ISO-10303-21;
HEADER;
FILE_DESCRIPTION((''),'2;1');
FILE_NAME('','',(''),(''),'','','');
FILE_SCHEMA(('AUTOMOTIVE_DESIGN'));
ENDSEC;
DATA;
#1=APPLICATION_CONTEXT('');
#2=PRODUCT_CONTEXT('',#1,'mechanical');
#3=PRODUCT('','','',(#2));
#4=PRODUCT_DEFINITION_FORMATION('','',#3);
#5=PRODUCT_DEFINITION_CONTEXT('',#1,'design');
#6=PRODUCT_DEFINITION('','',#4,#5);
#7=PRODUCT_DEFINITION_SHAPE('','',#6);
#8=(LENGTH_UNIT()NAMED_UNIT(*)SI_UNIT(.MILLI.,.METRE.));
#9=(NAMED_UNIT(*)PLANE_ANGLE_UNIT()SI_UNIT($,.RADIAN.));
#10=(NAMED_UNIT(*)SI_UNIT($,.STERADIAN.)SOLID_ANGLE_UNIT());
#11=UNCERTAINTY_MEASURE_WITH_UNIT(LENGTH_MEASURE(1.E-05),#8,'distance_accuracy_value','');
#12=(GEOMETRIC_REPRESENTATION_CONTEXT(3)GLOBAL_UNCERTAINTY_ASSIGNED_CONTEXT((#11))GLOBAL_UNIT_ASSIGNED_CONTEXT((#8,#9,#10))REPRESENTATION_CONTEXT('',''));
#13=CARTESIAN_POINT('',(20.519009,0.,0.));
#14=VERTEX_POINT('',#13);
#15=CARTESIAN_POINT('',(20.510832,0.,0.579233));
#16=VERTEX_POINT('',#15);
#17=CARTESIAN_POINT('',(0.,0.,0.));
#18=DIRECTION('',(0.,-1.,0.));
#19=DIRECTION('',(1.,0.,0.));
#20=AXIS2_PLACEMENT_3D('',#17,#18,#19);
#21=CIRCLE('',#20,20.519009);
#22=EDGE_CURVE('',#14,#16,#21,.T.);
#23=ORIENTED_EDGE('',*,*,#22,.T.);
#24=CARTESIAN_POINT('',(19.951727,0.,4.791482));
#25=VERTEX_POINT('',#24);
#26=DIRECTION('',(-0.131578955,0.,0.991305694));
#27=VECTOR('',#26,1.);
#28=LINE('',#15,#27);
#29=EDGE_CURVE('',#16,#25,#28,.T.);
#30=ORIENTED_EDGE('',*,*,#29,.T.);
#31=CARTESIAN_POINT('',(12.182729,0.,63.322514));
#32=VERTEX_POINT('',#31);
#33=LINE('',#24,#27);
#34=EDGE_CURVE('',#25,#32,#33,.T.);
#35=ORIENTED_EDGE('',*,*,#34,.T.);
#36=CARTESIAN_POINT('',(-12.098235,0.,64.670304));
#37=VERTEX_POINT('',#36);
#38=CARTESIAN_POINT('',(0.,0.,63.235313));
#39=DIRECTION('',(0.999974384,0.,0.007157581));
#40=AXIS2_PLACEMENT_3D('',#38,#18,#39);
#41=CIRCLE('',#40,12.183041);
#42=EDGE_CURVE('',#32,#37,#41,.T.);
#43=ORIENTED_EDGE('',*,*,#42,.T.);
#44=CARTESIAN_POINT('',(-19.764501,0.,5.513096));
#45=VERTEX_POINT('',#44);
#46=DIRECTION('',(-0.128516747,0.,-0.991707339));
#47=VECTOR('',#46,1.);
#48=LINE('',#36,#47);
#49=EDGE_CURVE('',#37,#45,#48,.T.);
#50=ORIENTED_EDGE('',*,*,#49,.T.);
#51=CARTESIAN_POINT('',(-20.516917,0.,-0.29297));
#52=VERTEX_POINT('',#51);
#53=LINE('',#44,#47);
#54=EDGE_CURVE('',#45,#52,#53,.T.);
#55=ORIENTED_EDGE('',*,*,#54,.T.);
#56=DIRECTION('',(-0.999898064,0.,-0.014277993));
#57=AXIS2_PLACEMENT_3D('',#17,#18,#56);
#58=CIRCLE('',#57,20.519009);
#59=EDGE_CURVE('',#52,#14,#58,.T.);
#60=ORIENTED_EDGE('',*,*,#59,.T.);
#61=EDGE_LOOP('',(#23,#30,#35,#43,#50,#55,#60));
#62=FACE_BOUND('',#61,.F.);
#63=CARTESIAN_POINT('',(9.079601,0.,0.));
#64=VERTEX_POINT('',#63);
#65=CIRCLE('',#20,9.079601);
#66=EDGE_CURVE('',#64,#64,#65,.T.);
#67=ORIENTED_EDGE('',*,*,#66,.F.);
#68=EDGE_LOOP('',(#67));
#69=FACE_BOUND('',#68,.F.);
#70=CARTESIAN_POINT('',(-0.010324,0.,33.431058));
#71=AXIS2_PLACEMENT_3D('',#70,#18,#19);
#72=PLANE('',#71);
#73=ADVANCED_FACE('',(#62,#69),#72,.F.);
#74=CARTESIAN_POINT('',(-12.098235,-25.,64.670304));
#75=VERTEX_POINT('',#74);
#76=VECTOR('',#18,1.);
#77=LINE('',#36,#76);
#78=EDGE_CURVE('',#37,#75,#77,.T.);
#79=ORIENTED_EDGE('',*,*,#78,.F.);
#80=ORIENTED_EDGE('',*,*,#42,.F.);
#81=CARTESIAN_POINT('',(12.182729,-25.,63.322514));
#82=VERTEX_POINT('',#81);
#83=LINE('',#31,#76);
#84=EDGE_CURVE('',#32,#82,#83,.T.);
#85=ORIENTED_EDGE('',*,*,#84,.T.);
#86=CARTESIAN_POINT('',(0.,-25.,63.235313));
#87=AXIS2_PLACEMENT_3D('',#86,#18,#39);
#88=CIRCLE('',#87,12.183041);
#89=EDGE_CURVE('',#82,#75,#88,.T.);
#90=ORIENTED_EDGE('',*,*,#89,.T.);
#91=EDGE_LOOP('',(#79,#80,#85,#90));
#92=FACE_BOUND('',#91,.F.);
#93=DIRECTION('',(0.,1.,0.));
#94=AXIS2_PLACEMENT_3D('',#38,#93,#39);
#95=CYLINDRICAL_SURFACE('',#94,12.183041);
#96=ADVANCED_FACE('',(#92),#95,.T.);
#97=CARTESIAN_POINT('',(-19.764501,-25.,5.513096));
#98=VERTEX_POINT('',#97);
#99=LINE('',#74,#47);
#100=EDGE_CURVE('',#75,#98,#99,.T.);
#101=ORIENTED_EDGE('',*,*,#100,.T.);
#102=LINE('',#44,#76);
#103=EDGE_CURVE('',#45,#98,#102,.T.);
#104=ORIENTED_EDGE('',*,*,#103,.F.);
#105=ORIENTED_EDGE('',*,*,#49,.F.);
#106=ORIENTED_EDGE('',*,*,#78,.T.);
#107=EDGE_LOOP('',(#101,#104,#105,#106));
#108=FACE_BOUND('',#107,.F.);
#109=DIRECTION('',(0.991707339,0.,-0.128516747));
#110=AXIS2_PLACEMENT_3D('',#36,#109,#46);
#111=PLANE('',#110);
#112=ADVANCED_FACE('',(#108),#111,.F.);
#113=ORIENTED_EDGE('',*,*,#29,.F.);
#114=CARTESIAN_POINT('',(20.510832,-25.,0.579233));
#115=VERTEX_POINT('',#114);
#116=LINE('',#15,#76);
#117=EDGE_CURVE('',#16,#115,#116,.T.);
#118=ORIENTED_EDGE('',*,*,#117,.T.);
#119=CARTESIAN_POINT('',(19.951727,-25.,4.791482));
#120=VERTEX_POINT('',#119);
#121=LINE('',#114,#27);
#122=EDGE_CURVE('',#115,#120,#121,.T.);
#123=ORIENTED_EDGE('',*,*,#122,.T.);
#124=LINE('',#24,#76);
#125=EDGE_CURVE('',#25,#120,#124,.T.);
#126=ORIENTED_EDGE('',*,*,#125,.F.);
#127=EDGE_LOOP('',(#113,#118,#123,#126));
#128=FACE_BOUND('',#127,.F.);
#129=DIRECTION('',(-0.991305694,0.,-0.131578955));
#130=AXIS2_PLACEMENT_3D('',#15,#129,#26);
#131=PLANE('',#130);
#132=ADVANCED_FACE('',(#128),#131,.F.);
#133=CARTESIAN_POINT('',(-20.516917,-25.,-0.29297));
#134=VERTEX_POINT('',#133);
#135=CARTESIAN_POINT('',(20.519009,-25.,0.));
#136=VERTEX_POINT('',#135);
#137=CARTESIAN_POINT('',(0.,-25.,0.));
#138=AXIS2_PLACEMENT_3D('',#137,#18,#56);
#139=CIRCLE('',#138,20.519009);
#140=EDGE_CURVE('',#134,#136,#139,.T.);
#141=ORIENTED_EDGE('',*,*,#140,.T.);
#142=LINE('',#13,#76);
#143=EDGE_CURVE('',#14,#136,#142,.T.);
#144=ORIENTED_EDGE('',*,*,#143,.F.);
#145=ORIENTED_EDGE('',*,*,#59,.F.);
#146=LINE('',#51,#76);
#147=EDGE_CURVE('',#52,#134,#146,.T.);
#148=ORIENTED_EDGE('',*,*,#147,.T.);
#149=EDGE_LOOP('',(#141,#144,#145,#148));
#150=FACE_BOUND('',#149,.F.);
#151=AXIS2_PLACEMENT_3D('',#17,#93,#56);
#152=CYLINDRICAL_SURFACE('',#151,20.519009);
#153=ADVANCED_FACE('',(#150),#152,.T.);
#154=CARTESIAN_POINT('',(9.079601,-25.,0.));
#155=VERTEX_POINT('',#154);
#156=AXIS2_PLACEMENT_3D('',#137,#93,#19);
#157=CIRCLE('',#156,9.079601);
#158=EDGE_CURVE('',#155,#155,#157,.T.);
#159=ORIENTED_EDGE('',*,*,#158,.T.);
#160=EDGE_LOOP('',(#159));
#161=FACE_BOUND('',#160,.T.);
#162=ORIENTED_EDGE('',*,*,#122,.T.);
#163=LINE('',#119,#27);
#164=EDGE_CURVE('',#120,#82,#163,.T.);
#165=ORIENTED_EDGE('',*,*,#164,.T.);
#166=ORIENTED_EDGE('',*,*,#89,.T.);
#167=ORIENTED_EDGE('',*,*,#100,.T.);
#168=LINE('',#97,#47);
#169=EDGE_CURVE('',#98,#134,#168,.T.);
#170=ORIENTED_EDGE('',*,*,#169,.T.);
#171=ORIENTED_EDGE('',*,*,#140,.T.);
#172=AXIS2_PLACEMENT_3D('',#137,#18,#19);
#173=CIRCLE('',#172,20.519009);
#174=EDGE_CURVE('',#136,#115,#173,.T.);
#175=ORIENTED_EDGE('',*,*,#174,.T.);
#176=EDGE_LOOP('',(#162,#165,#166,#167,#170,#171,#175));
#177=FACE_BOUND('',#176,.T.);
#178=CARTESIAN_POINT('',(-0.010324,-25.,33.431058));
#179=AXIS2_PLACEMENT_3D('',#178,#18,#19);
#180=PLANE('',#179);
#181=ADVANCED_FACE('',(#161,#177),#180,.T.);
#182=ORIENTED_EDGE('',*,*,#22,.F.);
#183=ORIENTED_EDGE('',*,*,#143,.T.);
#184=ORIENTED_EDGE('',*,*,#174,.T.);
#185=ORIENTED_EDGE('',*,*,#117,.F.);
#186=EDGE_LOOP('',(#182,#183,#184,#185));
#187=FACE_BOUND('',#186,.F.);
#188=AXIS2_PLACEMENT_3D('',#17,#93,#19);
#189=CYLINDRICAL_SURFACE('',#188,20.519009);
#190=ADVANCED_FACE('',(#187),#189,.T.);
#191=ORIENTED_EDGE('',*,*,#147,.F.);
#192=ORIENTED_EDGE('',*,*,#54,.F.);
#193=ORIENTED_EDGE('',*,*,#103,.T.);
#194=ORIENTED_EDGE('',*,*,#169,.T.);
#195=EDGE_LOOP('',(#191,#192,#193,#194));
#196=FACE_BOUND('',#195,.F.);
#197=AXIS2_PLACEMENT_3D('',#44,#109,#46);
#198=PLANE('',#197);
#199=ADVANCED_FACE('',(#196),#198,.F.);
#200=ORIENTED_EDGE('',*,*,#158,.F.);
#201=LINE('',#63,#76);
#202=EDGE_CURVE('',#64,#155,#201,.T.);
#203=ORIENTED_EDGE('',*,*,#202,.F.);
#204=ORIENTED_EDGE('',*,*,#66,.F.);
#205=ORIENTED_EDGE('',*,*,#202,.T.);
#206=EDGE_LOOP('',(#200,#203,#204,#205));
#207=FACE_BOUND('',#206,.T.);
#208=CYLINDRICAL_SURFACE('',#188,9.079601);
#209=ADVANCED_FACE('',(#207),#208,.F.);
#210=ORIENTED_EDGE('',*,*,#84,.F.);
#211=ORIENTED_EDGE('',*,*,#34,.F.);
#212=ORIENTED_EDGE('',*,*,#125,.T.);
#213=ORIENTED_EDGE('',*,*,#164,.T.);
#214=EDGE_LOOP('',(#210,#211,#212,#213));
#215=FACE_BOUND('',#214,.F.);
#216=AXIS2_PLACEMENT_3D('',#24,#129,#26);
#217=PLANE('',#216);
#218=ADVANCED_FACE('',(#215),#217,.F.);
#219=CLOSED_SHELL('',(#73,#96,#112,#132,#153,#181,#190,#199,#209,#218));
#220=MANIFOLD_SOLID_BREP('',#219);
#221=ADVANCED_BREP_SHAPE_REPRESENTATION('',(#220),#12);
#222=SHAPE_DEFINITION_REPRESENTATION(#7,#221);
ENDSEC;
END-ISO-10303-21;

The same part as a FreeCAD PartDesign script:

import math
import FreeCAD as App
import Part
import Sketcher

V = App.Vector

doc = App.newDocument("Part")
body = doc.addObject("PartDesign::Body", "Body")

# Sketch on XZ plane
sketch1 = doc.addObject("Sketcher::SketchObject", "Sketch")
body.addObject(sketch1)
sketch1.AttachmentSupport = (doc.XZ_Plane, [""])
sketch1.MapMode = "FlatFace"
sketch1.addGeometry(Part.LineSegment(V(19.951727, 4.791482, 0), V(12.182729, 63.322514, 0)), False)
sketch1.addGeometry(Part.ArcOfCircle(Part.Circle(V(0, 63.235313, 0), V(0, 0, 1), 12.183041), math.radians(0.410103), math.radians(173.235658)), False)
sketch1.addGeometry(Part.LineSegment(V(-12.098235, 64.670304, 0), V(-19.764501, 5.513096, 0)), False)
sketch1.addGeometry(Part.LineSegment(V(-19.764501, 5.513096, 0), V(-20.516917, -0.29297, 0)), False)
sketch1.addGeometry(Part.ArcOfCircle(Part.Circle(V(0, 0, 0), V(0, 0, 1), 20.519009), math.radians(-179.181903), math.radians(0)), False)
sketch1.addGeometry(Part.ArcOfCircle(Part.Circle(V(0, 0, 0), V(0, 0, 1), 20.519009), math.radians(0), math.radians(1.617624)), False)
sketch1.addGeometry(Part.LineSegment(V(20.510832, 0.579233, 0), V(19.951727, 4.791482, 0)), False)
sketch1.addConstraint(Sketcher.Constraint("Coincident", 0, 2, 1, 1))
sketch1.addConstraint(Sketcher.Constraint("Coincident", 1, 2, 2, 1))
sketch1.addConstraint(Sketcher.Constraint("Coincident", 2, 2, 3, 1))
sketch1.addConstraint(Sketcher.Constraint("Coincident", 3, 2, 4, 1))
sketch1.addConstraint(Sketcher.Constraint("Tangent", 4, 2, 5, 1))
sketch1.addConstraint(Sketcher.Constraint("Coincident", 5, 2, 6, 1))
sketch1.addConstraint(Sketcher.Constraint("Coincident", 6, 2, 0, 1))
sketch1.addConstraint(Sketcher.Constraint("Coincident", 4, 3, -1, 1))
sketch1.addConstraint(Sketcher.Constraint("Equal", 4, 5))
sketch1.addConstraint(Sketcher.Constraint("PointOnObject", 1, 3, -2))
sketch1.addConstraint(Sketcher.Constraint("PointOnObject", 4, 2, -1))
sketch1.addConstraint(Sketcher.Constraint("Parallel", 2, 3))
sketch1.addConstraint(Sketcher.Constraint("Parallel", 0, 6))
sketch1.addConstraint(Sketcher.Constraint("Radius", 1, 12.183041))
sketch1.addConstraint(Sketcher.Constraint("Radius", 4, 20.519009))
sketch1.addConstraint(Sketcher.Constraint("DistanceX", 2, 2, -1, 1, 19.764501))
sketch1.addConstraint(Sketcher.Constraint("DistanceY", 1, 3, 0, 2, 0.087201))
sketch1.addConstraint(Sketcher.Constraint("Distance", 0, 59.044381))
sketch1.addConstraint(Sketcher.Constraint("Distance", 2, 59.651881))
sketch1.addConstraint(Sketcher.Constraint("DistanceY", 3, 2, -1, 1, 0.29297))
sketch1.addConstraint(Sketcher.Constraint("DistanceX", -1, 1, 5, 2, 20.510832))
sketch1.addConstraint(Sketcher.Constraint("DistanceY", 1, 3, 1, 2, 1.434991))
pad1 = doc.addObject("PartDesign::Pad", "Pad")
body.addObject(pad1)
pad1.Profile = sketch1
pad1.Length = 25

# Sketch on XZ plane
sketch2 = doc.addObject("Sketcher::SketchObject", "Sketch001")
body.addObject(sketch2)
sketch2.AttachmentSupport = (doc.XZ_Plane, [""])
sketch2.MapMode = "FlatFace"
sketch2.addGeometry(Part.Circle(V(0, 0, 0), V(0, 0, 1), 9.079601), False)
sketch2.addConstraint(Sketcher.Constraint("Coincident", 0, 3, -1, 1))
sketch2.addConstraint(Sketcher.Constraint("Diameter", 0, 18.159202))
pocket1 = doc.addObject("PartDesign::Pocket", "Pocket")
body.addObject(pocket1)
pocket1.Profile = sketch2
pocket1.Type = "ThroughAll"
pocket1.Reversed = True

doc.recompute()
